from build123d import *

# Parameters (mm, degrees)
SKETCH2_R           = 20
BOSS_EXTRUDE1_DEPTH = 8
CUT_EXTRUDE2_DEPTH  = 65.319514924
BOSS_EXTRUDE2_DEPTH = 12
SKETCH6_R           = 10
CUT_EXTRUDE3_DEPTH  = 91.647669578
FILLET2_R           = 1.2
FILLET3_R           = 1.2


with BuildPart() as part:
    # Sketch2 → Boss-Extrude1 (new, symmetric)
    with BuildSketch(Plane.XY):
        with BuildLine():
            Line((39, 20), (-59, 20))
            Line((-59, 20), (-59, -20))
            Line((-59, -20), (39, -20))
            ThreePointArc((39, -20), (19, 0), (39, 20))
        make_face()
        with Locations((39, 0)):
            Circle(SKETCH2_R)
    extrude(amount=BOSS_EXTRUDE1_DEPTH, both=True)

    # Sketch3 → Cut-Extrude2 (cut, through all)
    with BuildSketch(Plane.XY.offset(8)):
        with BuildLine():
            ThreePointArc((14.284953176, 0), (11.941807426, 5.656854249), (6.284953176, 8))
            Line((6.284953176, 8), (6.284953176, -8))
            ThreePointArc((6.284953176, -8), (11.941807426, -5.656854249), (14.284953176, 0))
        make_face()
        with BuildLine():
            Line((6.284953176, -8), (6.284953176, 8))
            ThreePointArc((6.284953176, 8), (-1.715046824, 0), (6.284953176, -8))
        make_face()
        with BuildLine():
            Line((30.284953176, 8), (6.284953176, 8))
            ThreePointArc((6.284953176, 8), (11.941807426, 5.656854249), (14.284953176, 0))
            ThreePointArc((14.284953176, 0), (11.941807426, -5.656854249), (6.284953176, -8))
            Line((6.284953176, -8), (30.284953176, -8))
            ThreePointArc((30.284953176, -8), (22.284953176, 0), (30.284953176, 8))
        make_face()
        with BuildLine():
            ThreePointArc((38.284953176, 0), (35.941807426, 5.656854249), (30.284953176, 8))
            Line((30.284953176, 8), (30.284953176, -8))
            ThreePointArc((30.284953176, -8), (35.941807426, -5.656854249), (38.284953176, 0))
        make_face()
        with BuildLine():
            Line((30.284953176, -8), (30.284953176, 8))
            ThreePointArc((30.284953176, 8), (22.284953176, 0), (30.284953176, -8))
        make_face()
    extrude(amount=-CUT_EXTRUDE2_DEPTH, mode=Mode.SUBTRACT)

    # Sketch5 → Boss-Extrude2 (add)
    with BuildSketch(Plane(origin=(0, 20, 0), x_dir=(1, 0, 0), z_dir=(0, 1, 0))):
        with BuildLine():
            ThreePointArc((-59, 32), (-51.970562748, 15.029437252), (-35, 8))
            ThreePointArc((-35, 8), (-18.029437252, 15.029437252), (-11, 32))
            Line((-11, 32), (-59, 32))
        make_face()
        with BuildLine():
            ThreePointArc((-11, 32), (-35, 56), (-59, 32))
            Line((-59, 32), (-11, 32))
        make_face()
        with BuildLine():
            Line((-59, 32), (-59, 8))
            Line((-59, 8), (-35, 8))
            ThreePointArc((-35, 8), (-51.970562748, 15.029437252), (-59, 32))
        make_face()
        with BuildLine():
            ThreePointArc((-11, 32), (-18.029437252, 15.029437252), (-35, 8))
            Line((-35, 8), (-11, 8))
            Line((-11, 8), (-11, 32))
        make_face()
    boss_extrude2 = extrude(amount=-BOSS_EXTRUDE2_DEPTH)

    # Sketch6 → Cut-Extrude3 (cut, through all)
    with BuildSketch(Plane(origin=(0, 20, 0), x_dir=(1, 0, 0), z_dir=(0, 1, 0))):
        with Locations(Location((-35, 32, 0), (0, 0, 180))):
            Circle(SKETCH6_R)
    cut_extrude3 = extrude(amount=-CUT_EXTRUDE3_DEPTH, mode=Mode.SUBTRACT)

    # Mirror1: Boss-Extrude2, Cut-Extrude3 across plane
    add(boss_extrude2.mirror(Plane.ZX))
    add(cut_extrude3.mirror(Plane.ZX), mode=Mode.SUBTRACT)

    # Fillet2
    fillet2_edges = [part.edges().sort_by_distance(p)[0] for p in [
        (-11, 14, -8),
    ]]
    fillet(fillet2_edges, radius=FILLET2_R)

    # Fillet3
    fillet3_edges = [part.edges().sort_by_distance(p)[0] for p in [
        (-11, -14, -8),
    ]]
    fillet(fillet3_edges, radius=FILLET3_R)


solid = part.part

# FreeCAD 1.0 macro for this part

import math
import FreeCAD as App
import Part
import Sketcher

V = App.Vector


def edges_at(feature, points):
    """Names of the edges that pass closest to the given points."""
    edges = feature.Shape.Edges
    near = lambda p: min(range(len(edges)), key=lambda i: edges[i].distToShape(Part.Vertex(*p))[0])
    return sorted({f"Edge{near(p) + 1}" for p in points})

doc = App.newDocument("Part")
body = doc.addObject("PartDesign::Body", "Body")

sketch1 = doc.addObject("Sketcher::SketchObject", "Sketch")
body.addObject(sketch1)
sketch1.AttachmentSupport = (doc.XY_Plane, [""])
sketch1.MapMode = "FlatFace"
sketch1.addGeometry([
    Part.LineSegment(V(39, 20, 0), V(-59, 20, 0)),
    Part.LineSegment(V(-59, 20, 0), V(-59, -20, 0)),
    Part.LineSegment(V(-59, -20, 0), V(39, -20, 0)),
    Part.ArcOfCircle(Part.Circle(V(39, 0, 0), V(0, 0, 1), 20), math.radians(-90), math.radians(90)),
], False)
sketch1.addConstraint([
    Sketcher.Constraint("Coincident", 0, 2, 1, 1),
    Sketcher.Constraint("Coincident", 1, 2, 2, 1),
    Sketcher.Constraint("Tangent", 2, 2, 3, 1),
    Sketcher.Constraint("Tangent", 3, 2, 0, 1),
    Sketcher.Constraint("Horizontal", 0),
    Sketcher.Constraint("Vertical", 1),
    Sketcher.Constraint("Horizontal", 2),
    Sketcher.Constraint("PointOnObject", 3, 3, -1),
    Sketcher.Constraint("Radius", 3, 20.0),
    Sketcher.Constraint("DistanceX", 0, 2, 0, 1, 98.0),
    Sketcher.Constraint("DistanceX", -1, 1, 3, 3, 39.0),
])
pad1 = doc.addObject("PartDesign::Pad", "Pad")
body.addObject(pad1)
pad1.Profile = sketch1
pad1.Length = 16
pad1.Midplane = True

sketch2 = doc.addObject("Sketcher::SketchObject", "Sketch001")
body.addObject(sketch2)
sketch2.AttachmentSupport = (doc.XY_Plane, [""])
sketch2.MapMode = "FlatFace"
sketch2.AttachmentOffset = App.Placement(V(0, 0, 8), App.Rotation())
sketch2.addGeometry([
    Part.LineSegment(V(6.284953, -8, 0), V(30.284953, -8, 0)),
    Part.ArcOfCircle(Part.Circle(V(30.284953, 0, 0), V(0, 0, 1), 8), math.radians(-90), math.radians(0)),
    Part.ArcOfCircle(Part.Circle(V(30.284953, 0, 0), V(0, 0, 1), 8), math.radians(0), math.radians(90)),
    Part.LineSegment(V(30.284953, 8, 0), V(6.284953, 8, 0)),
    Part.ArcOfCircle(Part.Circle(V(6.284953, 0, 0), V(0, 0, 1), 8), math.radians(90), math.radians(270)),
], False)
sketch2.addConstraint([
    Sketcher.Constraint("Tangent", 0, 2, 1, 1),
    Sketcher.Constraint("Tangent", 1, 2, 2, 1),
    Sketcher.Constraint("Tangent", 2, 2, 3, 1),
    Sketcher.Constraint("Tangent", 3, 2, 4, 1),
    Sketcher.Constraint("Tangent", 4, 2, 0, 1),
    Sketcher.Constraint("Horizontal", 0),
    Sketcher.Constraint("Horizontal", 3),
    Sketcher.Constraint("Equal", 1, 2),
    Sketcher.Constraint("PointOnObject", 1, 3, -1),
    Sketcher.Constraint("PointOnObject", 1, 2, -1),
    Sketcher.Constraint("Radius", 1, 8.0),
    Sketcher.Constraint("DistanceX", 0, 1, 0, 2, 24.0),
    Sketcher.Constraint("DistanceX", -1, 1, 1, 3, 30.284953),
])
pocket1 = doc.addObject("PartDesign::Pocket", "Pocket")
body.addObject(pocket1)
pocket1.Profile = sketch2
pocket1.Type = "ThroughAll"

sketch3 = doc.addObject("Sketcher::SketchObject", "Sketch002")
body.addObject(sketch3)
sketch3.AttachmentSupport = (doc.XZ_Plane, [""])
sketch3.MapMode = "FlatFace"
sketch3.AttachmentOffset = App.Placement(V(0, 0, -20), App.Rotation())
sketch3.addGeometry([
    Part.ArcOfCircle(Part.Circle(V(-35, -32, 0), V(0, 0, 1), 24), math.radians(180), math.radians(360)),
    Part.LineSegment(V(-59, -32, 0), V(-59, -8, 0)),
    Part.LineSegment(V(-59, -8, 0), V(-11, -8, 0)),
    Part.LineSegment(V(-11, -8, 0), V(-11, -32, 0)),
], False)
sketch3.addConstraint([
    Sketcher.Constraint("Tangent", 0, 1, 1, 1),
    Sketcher.Constraint("Coincident", 1, 2, 2, 1),
    Sketcher.Constraint("Coincident", 2, 2, 3, 1),
    Sketcher.Constraint("Tangent", 3, 2, 0, 2),
    Sketcher.Constraint("Vertical", 1),
    Sketcher.Constraint("Horizontal", 2),
    Sketcher.Constraint("Vertical", 3),
    Sketcher.Constraint("Radius", 0, 24.0),
    Sketcher.Constraint("DistanceY", 1, 1, 1, 2, 24.0),
    Sketcher.Constraint("DistanceX", 0, 3, -1, 1, 35.0),
    Sketcher.Constraint("DistanceY", 0, 3, -1, 1, 32.0),
])
pad2 = doc.addObject("PartDesign::Pad", "Pad001")
body.addObject(pad2)
pad2.Profile = sketch3
pad2.Length = 12

sketch4 = doc.addObject("Sketcher::SketchObject", "Sketch003")
body.addObject(sketch4)
sketch4.AttachmentSupport = (doc.XZ_Plane, [""])
sketch4.MapMode = "FlatFace"
sketch4.AttachmentOffset = App.Placement(V(0, 0, -20), App.Rotation())
sketch4.addGeometry(Part.Circle(V(-35, -32, 0), V(0, 0, 1), 10), False)
sketch4.addConstraint([
    Sketcher.Constraint("Diameter", 0, 20.0),
    Sketcher.Constraint("DistanceX", 0, 3, -1, 1, 35.0),
    Sketcher.Constraint("DistanceY", 0, 3, -1, 1, 32.0),
])
pocket2 = doc.addObject("PartDesign::Pocket", "Pocket001")
body.addObject(pocket2)
pocket2.Profile = sketch4
pocket2.Type = "ThroughAll"
pocket2.Reversed = True
doc.recompute()

mirrored = doc.addObject("PartDesign::Mirrored", "Mirrored")
body.addObject(mirrored)
mirrored.Originals = [pad2, pocket2]
mirrored.MirrorPlane = (doc.XZ_Plane, [""])
body.Tip = mirrored
doc.recompute()

fillet = doc.addObject("PartDesign::Fillet", "Fillet")
body.addObject(fillet)
fillet.Base = (mirrored, edges_at(mirrored, [(-11, 14, -8)]))
fillet.Radius = 1.2
doc.recompute()

fillet2 = doc.addObject("PartDesign::Fillet", "Fillet001")
body.addObject(fillet2)
fillet2.Base = (fillet, edges_at(fillet, [(-11, -14, -8)]))
fillet2.Radius = 1.2

doc.recompute()
